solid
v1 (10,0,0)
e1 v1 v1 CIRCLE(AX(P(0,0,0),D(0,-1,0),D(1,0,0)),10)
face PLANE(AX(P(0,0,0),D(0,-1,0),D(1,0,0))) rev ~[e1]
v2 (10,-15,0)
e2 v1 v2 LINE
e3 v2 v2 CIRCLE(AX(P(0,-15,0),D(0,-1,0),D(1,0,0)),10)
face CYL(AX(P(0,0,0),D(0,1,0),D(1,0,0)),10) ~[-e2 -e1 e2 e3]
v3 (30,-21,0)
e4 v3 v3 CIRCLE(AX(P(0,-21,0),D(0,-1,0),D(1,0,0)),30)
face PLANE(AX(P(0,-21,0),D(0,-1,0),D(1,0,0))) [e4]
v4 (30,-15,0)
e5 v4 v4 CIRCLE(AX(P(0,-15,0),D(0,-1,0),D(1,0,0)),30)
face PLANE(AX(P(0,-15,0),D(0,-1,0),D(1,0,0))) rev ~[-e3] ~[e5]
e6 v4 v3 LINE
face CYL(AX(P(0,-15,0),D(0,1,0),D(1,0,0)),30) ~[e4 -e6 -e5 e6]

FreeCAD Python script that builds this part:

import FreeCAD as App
import Part
import Sketcher
Q = App.Units.Quantity

doc = App.newDocument("Part")
body = doc.addObject("PartDesign::Body", "Body")

# Sketch on XZ plane
sketch1 = doc.addObject("Sketcher::SketchObject", "Sketch")
body.addObject(sketch1)
sketch1.AttachmentSupport = (doc.XZ_Plane, [""])
sketch1.MapMode = "FlatFace"
sketch1.addGeometry(Part.Circle(App.Vector(0, 0, 0), App.Vector(0, 0, 1), 10), False)
sketch1.addConstraint(Sketcher.Constraint("Coincident", 0, 3, -1, 1))
sketch1.addConstraint(Sketcher.Constraint("Diameter", 0, Q("20 mm")))
pad1 = doc.addObject("PartDesign::Pad", "Pad")
body.addObject(pad1)
pad1.Profile = sketch1
pad1.Length = 15

# Sketch on XZ plane
sketch2 = doc.addObject("Sketcher::SketchObject", "Sketch001")
body.addObject(sketch2)
sketch2.AttachmentSupport = (doc.XZ_Plane, [""])
sketch2.MapMode = "FlatFace"
sketch2.AttachmentOffset = App.Placement(App.Vector(0, 0, 15), App.Rotation())
sketch2.addGeometry(Part.Circle(App.Vector(0, 0, 0), App.Vector(0, 0, 1), 30), False)
sketch2.addConstraint(Sketcher.Constraint("Coincident", 0, 3, -1, 1))
sketch2.addConstraint(Sketcher.Constraint("Diameter", 0, Q("60 mm")))
pad2 = doc.addObject("PartDesign::Pad", "Pad001")
body.addObject(pad2)
pad2.Profile = sketch2
pad2.Length = 6

doc.recompute()
